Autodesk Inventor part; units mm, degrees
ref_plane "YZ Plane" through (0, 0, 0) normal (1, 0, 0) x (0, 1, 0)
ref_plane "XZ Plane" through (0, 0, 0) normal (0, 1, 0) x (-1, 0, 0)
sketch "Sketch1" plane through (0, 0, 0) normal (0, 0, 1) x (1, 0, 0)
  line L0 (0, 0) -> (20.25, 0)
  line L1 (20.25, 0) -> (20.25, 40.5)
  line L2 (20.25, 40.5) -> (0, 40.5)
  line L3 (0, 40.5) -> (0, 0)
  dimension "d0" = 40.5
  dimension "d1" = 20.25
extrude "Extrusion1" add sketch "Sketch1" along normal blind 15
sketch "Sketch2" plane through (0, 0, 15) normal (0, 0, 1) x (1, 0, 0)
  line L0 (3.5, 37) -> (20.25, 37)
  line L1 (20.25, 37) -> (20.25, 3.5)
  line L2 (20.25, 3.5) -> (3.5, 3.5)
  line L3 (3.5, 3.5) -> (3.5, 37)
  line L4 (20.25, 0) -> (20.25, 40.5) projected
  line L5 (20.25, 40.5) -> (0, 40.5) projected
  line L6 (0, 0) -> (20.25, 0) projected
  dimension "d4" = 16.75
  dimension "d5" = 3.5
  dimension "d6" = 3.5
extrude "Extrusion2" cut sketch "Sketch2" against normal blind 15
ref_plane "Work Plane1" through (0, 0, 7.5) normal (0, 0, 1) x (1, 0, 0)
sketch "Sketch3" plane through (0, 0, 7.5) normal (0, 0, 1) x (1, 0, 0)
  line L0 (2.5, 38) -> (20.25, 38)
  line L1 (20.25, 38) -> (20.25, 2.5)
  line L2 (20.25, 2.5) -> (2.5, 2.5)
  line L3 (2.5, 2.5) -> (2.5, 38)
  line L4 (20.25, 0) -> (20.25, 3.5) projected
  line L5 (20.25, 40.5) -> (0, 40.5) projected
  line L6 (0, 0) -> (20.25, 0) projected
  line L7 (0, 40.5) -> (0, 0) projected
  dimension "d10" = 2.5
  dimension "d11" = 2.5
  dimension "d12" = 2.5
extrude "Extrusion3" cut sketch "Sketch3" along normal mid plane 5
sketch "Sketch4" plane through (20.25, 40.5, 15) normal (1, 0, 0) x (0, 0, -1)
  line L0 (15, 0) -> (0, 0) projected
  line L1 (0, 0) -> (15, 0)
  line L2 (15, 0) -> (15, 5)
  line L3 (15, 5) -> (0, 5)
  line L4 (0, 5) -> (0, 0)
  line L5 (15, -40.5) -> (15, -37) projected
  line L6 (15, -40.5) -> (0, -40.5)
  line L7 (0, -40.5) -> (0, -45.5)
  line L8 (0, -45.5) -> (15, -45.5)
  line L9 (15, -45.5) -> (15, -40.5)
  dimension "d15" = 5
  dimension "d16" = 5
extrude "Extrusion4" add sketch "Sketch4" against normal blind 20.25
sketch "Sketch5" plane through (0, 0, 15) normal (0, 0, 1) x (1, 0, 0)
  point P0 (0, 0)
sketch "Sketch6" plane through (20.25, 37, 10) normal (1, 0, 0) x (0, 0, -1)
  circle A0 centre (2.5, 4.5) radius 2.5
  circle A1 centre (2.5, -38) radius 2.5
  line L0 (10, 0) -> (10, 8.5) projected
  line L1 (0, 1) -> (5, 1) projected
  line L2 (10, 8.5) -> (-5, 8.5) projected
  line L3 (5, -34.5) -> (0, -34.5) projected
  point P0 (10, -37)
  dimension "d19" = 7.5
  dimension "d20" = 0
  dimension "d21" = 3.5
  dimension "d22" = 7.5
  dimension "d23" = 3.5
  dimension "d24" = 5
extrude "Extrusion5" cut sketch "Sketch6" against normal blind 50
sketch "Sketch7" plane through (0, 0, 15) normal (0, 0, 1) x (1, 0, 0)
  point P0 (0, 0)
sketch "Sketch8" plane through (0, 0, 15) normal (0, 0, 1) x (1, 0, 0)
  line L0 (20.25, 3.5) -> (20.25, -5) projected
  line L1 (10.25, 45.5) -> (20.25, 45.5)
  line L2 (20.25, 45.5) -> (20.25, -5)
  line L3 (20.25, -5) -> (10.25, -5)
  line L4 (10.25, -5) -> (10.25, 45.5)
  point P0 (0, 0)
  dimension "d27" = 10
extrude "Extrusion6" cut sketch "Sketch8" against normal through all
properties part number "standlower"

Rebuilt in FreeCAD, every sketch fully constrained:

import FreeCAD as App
import Part
import Sketcher
from FreeCAD import Vector

doc = App.newDocument("Part")
body = doc.addObject("PartDesign::Body", "Body")

# Sketch on XY plane
sketch1 = body.newObject("Sketcher::SketchObject", "Sketch")
sketch1.AttachmentSupport = (doc.getObject("XY_Plane"), [""])
sketch1.MapMode = "FlatFace"
sketch1.addGeometry(Part.LineSegment(Vector(0, 40, 0), Vector(0, 0, 0)), False)
sketch1.addGeometry(Part.LineSegment(Vector(0, 0, 0), Vector(20, 0, 0)), False)
sketch1.addGeometry(Part.LineSegment(Vector(20, 0, 0), Vector(20, 40, 0)), False)
sketch1.addGeometry(Part.LineSegment(Vector(20, 40, 0), Vector(0, 40, 0)), False)
sketch1.addConstraint(Sketcher.Constraint("Coincident", 0, 2, 1, 1))
sketch1.addConstraint(Sketcher.Constraint("Coincident", 1, 2, 2, 1))
sketch1.addConstraint(Sketcher.Constraint("Coincident", 2, 2, 3, 1))
sketch1.addConstraint(Sketcher.Constraint("Coincident", 3, 2, 0, 1))
sketch1.addConstraint(Sketcher.Constraint("Vertical", 0))
sketch1.addConstraint(Sketcher.Constraint("Horizontal", 1))
sketch1.addConstraint(Sketcher.Constraint("Vertical", 2))
sketch1.addConstraint(Sketcher.Constraint("Horizontal", 3))
sketch1.addConstraint(Sketcher.Constraint("Coincident", 0, 2, -1, 1))
sketch1.addConstraint(Sketcher.Constraint("DistanceY", 0, 2, 0, 1, 40.5))
sketch1.addConstraint(Sketcher.Constraint("DistanceX", 1, 1, 1, 2, 20.25))
pad1 = body.newObject("PartDesign::Pad", "Pad")
pad1.Profile = sketch1
pad1.Length = 15

# Sketch on XY plane
sketch2 = body.newObject("Sketcher::SketchObject", "Sketch001")
sketch2.AttachmentSupport = (doc.getObject("XY_Plane"), [""])
sketch2.MapMode = "FlatFace"
sketch2.AttachmentOffset = App.Placement(Vector(0, 0, 15), App.Rotation())
sketch2.addGeometry(Part.LineSegment(Vector(20, 37, 0), Vector(4, 37, 0)), False)
sketch2.addGeometry(Part.LineSegment(Vector(4, 37, 0), Vector(4, 4, 0)), False)
sketch2.addGeometry(Part.LineSegment(Vector(4, 4, 0), Vector(20, 4, 0)), False)
sketch2.addGeometry(Part.LineSegment(Vector(20, 4, 0), Vector(20, 37, 0)), False)
sketch2.addConstraint(Sketcher.Constraint("Coincident", 0, 2, 1, 1))
sketch2.addConstraint(Sketcher.Constraint("Coincident", 1, 2, 2, 1))
sketch2.addConstraint(Sketcher.Constraint("Coincident", 2, 2, 3, 1))
sketch2.addConstraint(Sketcher.Constraint("Coincident", 3, 2, 0, 1))
sketch2.addConstraint(Sketcher.Constraint("Horizontal", 0))
sketch2.addConstraint(Sketcher.Constraint("Vertical", 1))
sketch2.addConstraint(Sketcher.Constraint("Horizontal", 2))
sketch2.addConstraint(Sketcher.Constraint("Vertical", 3))
sketch2.addConstraint(Sketcher.Constraint("DistanceX", 0, 2, 0, 1, 16.75))
sketch2.addConstraint(Sketcher.Constraint("DistanceX", -1, 1, 0, 2, 3.5))
sketch2.addConstraint(Sketcher.Constraint("DistanceY", -1, 1, 1, 2, 3.5))
sketch2.addConstraint(Sketcher.Constraint("DistanceY", 1, 2, 1, 1, 33.5))
pocket1 = body.newObject("PartDesign::Pocket", "Pocket")
pocket1.Profile = sketch2
pocket1.Length = 15

# Sketch on XY plane
sketch3 = body.newObject("Sketcher::SketchObject", "Sketch002")
sketch3.AttachmentSupport = (doc.getObject("XY_Plane"), [""])
sketch3.MapMode = "FlatFace"
sketch3.AttachmentOffset = App.Placement(Vector(0, 0, 7.5), App.Rotation())
sketch3.addGeometry(Part.LineSegment(Vector(20, 38, 0), Vector(2, 38, 0)), False)
sketch3.addGeometry(Part.LineSegment(Vector(2, 38, 0), Vector(2, 2, 0)), False)
sketch3.addGeometry(Part.LineSegment(Vector(2, 2, 0), Vector(20, 2, 0)), False)
sketch3.addGeometry(Part.LineSegment(Vector(20, 2, 0), Vector(20, 38, 0)), False)
sketch3.addConstraint(Sketcher.Constraint("Coincident", 0, 2, 1, 1))
sketch3.addConstraint(Sketcher.Constraint("Coincident", 1, 2, 2, 1))
sketch3.addConstraint(Sketcher.Constraint("Coincident", 2, 2, 3, 1))
sketch3.addConstraint(Sketcher.Constraint("Coincident", 3, 2, 0, 1))
sketch3.addConstraint(Sketcher.Constraint("Horizontal", 0))
sketch3.addConstraint(Sketcher.Constraint("Vertical", 1))
sketch3.addConstraint(Sketcher.Constraint("Horizontal", 2))
sketch3.addConstraint(Sketcher.Constraint("Vertical", 3))
sketch3.addConstraint(Sketcher.Constraint("DistanceX", -1, 1, 0, 2, 2.5))
sketch3.addConstraint(Sketcher.Constraint("DistanceY", -1, 1, 1, 2, 2.5))
sketch3.addConstraint(Sketcher.Constraint("DistanceY", 1, 2, 1, 1, 35.5))
sketch3.addConstraint(Sketcher.Constraint("DistanceX", 0, 2, 0, 1, 17.75))
pocket2 = body.newObject("PartDesign::Pocket", "Pocket001")
pocket2.Profile = sketch3
pocket2.Length = 5
pocket2.Midplane = True

# Sketch on YZ plane
sketch4 = body.newObject("Sketcher::SketchObject", "Sketch003")
sketch4.AttachmentSupport = (doc.getObject("YZ_Plane"), [""])
sketch4.MapMode = "FlatFace"
sketch4.AttachmentOffset = App.Placement(Vector(0, 0, 20.25), App.Rotation())
sketch4.addGeometry(Part.LineSegment(Vector(40, 15, 0), Vector(40, 0, 0)), False)
sketch4.addGeometry(Part.LineSegment(Vector(40, 0, 0), Vector(46, 0, 0)), False)
sketch4.addGeometry(Part.LineSegment(Vector(46, 0, 0), Vector(46, 15, 0)), False)
sketch4.addGeometry(Part.LineSegment(Vector(46, 15, 0), Vector(40, 15, 0)), False)
sketch4.addGeometry(Part.LineSegment(Vector(-5, 0, 0), Vector(0, 0, 0)), False)
sketch4.addGeometry(Part.LineSegment(Vector(0, 0, 0), Vector(0, 15, 0)), False)
sketch4.addGeometry(Part.LineSegment(Vector(0, 15, 0), Vector(-5, 15, 0)), False)
sketch4.addGeometry(Part.LineSegment(Vector(-5, 15, 0), Vector(-5, 0, 0)), False)
sketch4.addConstraint(Sketcher.Constraint("Coincident", 0, 2, 1, 1))
sketch4.addConstraint(Sketcher.Constraint("Coincident", 1, 2, 2, 1))
sketch4.addConstraint(Sketcher.Constraint("Coincident", 2, 2, 3, 1))
sketch4.addConstraint(Sketcher.Constraint("Coincident", 3, 2, 0, 1))
sketch4.addConstraint(Sketcher.Constraint("Coincident", 4, 2, 5, 1))
sketch4.addConstraint(Sketcher.Constraint("Coincident", 5, 2, 6, 1))
sketch4.addConstraint(Sketcher.Constraint("Coincident", 6, 2, 7, 1))
sketch4.addConstraint(Sketcher.Constraint("Coincident", 7, 2, 4, 1))
sketch4.addConstraint(Sketcher.Constraint("Vertical", 0))
sketch4.addConstraint(Sketcher.Constraint("Horizontal", 1))
sketch4.addConstraint(Sketcher.Constraint("Vertical", 2))
sketch4.addConstraint(Sketcher.Constraint("Horizontal", 3))
sketch4.addConstraint(Sketcher.Constraint("Horizontal", 4))
sketch4.addConstraint(Sketcher.Constraint("Vertical", 5))
sketch4.addConstraint(Sketcher.Constraint("Horizontal", 6))
sketch4.addConstraint(Sketcher.Constraint("Vertical", 7))
sketch4.addConstraint(Sketcher.Constraint("Coincident", 4, 2, -1, 1))
sketch4.addConstraint(Sketcher.Constraint("PointOnObject", 0, 2, -1))
sketch4.addConstraint(Sketcher.Constraint("Horizontal", 3, 2, 5, 2))
sketch4.addConstraint(Sketcher.Constraint("Equal", 3, 4))
sketch4.addConstraint(Sketcher.Constraint("DistanceX", 1, 1, 1, 2, 5.0))
sketch4.addConstraint(Sketcher.Constraint("DistanceY", 0, 2, 0, 1, 15.0))
sketch4.addConstraint(Sketcher.Constraint("DistanceX", -1, 1, 0, 2, 40.5))
pad2 = body.newObject("PartDesign::Pad", "Pad001")
pad2.Profile = sketch4
pad2.Length = 20.25
pad2.Reversed = True

# Sketch on YZ plane
sketch5 = body.newObject("Sketcher::SketchObject", "Sketch004")
sketch5.AttachmentSupport = (doc.getObject("YZ_Plane"), [""])
sketch5.MapMode = "FlatFace"
sketch5.AttachmentOffset = App.Placement(Vector(0, 0, 20.25), App.Rotation())
sketch5.addGeometry(Part.Circle(Vector(41.5, 7.5, 0), Vector(0, 0, 1), 2.5), False)
sketch5.addGeometry(Part.Circle(Vector(-1, 7.5, 0), Vector(0, 0, 1), 2.5), False)
sketch5.addConstraint(Sketcher.Constraint("Equal", 0, 1))
sketch5.addConstraint(Sketcher.Constraint("Horizontal", 0, 3, 1, 3))
sketch5.addConstraint(Sketcher.Constraint("Diameter", 0, 5.0))
sketch5.addConstraint(Sketcher.Constraint("DistanceY", -1, 1, 0, 3, 7.5))
sketch5.addConstraint(Sketcher.Constraint("DistanceX", 1, 3, -1, 1, 1.0))
sketch5.addConstraint(Sketcher.Constraint("DistanceX", -1, 1, 0, 3, 41.5))
pocket3 = body.newObject("PartDesign::Pocket", "Pocket002")
pocket3.Profile = sketch5
pocket3.Length = 50

# Sketch on XY plane
sketch6 = body.newObject("Sketcher::SketchObject", "Sketch005")
sketch6.AttachmentSupport = (doc.getObject("XY_Plane"), [""])
sketch6.MapMode = "FlatFace"
sketch6.AttachmentOffset = App.Placement(Vector(0, 0, 15), App.Rotation())
sketch6.addGeometry(Part.LineSegment(Vector(20, -5, 0), Vector(20, 46, 0)), False)
sketch6.addGeometry(Part.LineSegment(Vector(20, 46, 0), Vector(10, 46, 0)), False)
sketch6.addGeometry(Part.LineSegment(Vector(10, 46, 0), Vector(10, -5, 0)), False)
sketch6.addGeometry(Part.LineSegment(Vector(10, -5, 0), Vector(20, -5, 0)), False)
sketch6.addConstraint(Sketcher.Constraint("Coincident", 0, 2, 1, 1))
sketch6.addConstraint(Sketcher.Constraint("Coincident", 1, 2, 2, 1))
sketch6.addConstraint(Sketcher.Constraint("Coincident", 2, 2, 3, 1))
sketch6.addConstraint(Sketcher.Constraint("Coincident", 3, 2, 0, 1))
sketch6.addConstraint(Sketcher.Constraint("Vertical", 0))
sketch6.addConstraint(Sketcher.Constraint("Horizontal", 1))
sketch6.addConstraint(Sketcher.Constraint("Vertical", 2))
sketch6.addConstraint(Sketcher.Constraint("Horizontal", 3))
sketch6.addConstraint(Sketcher.Constraint("DistanceX", 1, 2, 1, 1, 10.0))
sketch6.addConstraint(Sketcher.Constraint("DistanceY", 0, 1, 0, 2, 50.5))
sketch6.addConstraint(Sketcher.Constraint("DistanceY", 2, 2, -1, 1, 5.0))
sketch6.addConstraint(Sketcher.Constraint("DistanceX", -1, 1, 0, 2, 20.25))
pocket4 = body.newObject("PartDesign::Pocket", "Pocket003")
pocket4.Profile = sketch6
pocket4.Type = "ThroughAll"

doc.recompute()
